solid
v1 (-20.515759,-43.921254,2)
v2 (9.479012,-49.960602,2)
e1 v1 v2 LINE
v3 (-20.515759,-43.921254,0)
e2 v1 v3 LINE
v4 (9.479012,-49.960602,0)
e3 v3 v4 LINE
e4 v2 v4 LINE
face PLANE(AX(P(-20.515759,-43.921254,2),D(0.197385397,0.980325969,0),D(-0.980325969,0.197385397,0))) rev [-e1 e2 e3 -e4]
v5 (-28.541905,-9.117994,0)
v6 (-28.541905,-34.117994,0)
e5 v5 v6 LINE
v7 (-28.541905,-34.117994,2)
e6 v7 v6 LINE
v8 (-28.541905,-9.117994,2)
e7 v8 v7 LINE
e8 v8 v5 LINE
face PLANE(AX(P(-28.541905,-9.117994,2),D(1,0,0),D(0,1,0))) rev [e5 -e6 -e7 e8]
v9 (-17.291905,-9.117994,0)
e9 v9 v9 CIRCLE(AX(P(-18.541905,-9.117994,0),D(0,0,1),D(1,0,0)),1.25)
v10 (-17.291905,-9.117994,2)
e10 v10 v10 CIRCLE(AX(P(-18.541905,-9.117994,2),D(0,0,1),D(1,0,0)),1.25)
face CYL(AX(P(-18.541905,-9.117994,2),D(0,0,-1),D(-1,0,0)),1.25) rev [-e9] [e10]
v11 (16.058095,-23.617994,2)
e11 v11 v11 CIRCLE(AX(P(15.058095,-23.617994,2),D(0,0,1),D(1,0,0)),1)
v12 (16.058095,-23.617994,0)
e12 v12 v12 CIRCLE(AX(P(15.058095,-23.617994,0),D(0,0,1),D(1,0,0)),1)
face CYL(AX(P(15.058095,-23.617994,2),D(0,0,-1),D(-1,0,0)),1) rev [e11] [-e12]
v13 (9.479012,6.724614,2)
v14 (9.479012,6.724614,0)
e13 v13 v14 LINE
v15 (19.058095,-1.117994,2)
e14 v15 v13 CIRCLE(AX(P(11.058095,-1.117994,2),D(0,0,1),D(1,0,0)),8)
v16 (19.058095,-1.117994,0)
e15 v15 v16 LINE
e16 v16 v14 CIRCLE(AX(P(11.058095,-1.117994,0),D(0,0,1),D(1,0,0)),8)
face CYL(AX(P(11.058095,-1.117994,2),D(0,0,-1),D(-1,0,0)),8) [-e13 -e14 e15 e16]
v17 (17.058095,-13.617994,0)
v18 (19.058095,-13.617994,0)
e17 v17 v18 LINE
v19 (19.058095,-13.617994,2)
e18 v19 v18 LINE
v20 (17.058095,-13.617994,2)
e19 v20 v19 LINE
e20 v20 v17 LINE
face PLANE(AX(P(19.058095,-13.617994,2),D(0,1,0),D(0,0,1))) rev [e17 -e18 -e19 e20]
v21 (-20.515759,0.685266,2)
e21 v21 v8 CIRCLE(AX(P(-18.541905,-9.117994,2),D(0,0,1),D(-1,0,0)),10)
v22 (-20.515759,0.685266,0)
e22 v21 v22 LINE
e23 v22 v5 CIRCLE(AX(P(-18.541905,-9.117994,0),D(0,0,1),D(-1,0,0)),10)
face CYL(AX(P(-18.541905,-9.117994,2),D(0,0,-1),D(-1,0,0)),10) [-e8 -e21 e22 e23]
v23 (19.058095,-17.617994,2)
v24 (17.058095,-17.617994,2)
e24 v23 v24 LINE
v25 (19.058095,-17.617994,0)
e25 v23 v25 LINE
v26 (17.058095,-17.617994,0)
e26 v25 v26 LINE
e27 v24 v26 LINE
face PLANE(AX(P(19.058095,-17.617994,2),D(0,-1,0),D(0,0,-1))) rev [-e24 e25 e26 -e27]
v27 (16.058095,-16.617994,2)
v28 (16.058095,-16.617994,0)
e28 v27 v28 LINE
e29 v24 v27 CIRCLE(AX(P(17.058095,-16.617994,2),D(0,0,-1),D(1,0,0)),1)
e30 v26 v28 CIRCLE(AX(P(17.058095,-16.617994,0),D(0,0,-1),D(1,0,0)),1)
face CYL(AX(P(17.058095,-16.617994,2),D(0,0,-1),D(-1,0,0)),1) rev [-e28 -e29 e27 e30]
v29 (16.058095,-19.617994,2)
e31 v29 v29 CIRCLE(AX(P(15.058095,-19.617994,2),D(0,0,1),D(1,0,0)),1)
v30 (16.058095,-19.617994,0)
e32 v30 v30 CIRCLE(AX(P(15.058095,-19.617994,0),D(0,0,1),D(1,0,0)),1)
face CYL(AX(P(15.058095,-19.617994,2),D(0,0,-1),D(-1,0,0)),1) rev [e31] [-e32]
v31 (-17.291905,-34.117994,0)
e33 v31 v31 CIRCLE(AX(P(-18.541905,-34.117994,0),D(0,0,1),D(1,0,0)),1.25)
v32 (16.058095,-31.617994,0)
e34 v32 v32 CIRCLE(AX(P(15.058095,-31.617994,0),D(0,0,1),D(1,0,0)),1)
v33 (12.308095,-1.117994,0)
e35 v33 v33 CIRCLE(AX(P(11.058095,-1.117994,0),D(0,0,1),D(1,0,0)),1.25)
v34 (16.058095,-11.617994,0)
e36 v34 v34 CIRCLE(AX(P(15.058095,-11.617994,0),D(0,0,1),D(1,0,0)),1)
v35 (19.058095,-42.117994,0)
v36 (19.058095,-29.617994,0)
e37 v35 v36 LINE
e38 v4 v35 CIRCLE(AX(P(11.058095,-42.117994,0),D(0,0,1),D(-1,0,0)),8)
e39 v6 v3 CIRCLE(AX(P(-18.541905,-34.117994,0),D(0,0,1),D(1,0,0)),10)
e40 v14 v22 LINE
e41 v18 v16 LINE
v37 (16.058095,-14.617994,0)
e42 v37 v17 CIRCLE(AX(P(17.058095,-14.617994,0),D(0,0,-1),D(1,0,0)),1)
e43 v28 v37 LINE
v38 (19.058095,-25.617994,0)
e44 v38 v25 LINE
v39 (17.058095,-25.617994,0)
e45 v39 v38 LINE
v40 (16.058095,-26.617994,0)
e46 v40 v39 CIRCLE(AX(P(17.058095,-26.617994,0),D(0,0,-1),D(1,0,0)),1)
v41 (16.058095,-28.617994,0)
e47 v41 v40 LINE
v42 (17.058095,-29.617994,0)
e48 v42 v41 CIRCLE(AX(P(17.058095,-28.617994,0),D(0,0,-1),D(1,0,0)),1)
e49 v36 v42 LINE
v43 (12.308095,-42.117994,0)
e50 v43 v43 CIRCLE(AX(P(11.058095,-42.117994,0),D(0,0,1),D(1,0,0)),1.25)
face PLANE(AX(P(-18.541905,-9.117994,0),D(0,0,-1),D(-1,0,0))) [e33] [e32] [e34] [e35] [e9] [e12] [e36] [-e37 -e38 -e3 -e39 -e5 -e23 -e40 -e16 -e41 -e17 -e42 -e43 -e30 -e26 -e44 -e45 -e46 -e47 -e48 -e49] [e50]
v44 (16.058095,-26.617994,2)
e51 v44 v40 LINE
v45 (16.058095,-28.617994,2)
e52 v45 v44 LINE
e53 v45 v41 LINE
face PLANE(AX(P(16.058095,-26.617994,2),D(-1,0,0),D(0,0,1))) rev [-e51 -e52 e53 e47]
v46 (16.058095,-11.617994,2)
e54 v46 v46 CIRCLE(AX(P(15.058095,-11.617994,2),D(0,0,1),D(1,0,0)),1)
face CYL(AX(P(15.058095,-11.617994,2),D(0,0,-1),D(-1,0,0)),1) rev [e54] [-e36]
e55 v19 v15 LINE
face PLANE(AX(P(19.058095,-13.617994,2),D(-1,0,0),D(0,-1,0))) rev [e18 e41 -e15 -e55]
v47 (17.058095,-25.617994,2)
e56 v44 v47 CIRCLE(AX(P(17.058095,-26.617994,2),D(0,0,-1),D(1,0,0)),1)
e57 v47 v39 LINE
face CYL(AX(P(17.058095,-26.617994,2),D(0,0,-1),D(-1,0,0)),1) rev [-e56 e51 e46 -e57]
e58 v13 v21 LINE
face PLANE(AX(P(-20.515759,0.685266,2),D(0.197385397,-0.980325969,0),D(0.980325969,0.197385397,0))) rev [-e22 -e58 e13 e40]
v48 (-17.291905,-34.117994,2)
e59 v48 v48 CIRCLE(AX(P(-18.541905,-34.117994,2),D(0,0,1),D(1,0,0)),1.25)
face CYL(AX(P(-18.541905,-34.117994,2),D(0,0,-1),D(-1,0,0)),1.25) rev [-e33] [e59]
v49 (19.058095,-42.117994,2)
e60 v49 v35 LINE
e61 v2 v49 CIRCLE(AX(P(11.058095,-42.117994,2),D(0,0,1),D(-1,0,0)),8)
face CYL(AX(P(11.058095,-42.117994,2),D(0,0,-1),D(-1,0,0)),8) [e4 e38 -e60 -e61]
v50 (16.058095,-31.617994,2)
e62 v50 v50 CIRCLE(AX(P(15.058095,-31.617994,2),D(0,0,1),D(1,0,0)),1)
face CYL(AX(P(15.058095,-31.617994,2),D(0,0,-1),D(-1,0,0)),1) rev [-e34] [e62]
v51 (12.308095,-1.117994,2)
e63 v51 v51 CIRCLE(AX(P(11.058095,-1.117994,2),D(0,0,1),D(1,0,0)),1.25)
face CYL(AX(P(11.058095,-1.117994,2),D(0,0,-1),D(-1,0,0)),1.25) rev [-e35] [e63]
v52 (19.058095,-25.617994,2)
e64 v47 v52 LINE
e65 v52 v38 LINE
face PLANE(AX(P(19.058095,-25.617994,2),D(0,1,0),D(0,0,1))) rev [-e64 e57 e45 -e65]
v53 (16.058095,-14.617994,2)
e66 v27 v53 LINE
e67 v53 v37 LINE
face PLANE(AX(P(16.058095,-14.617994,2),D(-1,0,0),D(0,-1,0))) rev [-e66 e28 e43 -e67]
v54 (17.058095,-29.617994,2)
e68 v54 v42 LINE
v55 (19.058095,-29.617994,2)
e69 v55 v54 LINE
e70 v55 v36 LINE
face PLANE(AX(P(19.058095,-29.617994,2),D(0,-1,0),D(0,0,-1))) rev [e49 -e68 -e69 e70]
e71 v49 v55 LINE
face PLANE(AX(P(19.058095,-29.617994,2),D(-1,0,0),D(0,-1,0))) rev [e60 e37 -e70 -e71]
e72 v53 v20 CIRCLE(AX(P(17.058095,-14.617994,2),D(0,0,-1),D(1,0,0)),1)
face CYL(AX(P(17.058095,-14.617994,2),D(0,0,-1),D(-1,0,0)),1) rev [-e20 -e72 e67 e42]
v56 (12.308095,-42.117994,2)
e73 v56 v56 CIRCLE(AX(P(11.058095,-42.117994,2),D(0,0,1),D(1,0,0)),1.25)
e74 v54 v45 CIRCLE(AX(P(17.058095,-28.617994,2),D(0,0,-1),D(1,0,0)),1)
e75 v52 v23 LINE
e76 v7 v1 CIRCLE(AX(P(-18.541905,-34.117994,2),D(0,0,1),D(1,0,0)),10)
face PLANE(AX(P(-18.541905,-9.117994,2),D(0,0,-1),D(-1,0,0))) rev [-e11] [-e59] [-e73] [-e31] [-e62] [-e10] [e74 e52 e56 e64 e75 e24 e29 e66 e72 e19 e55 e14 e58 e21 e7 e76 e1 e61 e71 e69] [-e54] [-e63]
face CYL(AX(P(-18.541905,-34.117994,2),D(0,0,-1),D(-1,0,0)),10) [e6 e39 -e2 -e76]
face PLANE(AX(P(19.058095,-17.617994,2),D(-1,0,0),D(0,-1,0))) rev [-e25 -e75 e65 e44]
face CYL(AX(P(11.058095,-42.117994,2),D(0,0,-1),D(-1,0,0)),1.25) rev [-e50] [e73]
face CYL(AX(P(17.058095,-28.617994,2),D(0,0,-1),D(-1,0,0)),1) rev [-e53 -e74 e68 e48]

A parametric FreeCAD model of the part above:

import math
import FreeCAD as App
import Part
import Sketcher

V = App.Vector
Q = App.Units.Quantity

doc = App.newDocument("Part")
body = doc.addObject("PartDesign::Body", "Body")

# Sketch on XY plane
sketch1 = body.newObject("Sketcher::SketchObject", "Sketch")
sketch1.AttachmentSupport = (doc.getObject("XY_Plane"), [""])
sketch1.MapMode = "FlatFace"
sketch1.addGeometry([
    Part.LineSegment(V(-28.5, -9.1, 0), V(-28.5, -34.1, 0)),  # 0
    Part.ArcOfCircle(Part.Circle(V(-18.5, -34.1, 0), V(0, 0, 1), 10), math.radians(180), math.radians(259)),  # 1
    Part.LineSegment(V(-20.5, -43.9, 0), V(9.5, -50, 0)),  # 2
    Part.ArcOfCircle(Part.Circle(V(11.1, -42.1, 0), V(0, 0, 1), 8), math.radians(-101), math.radians(0)),  # 3
    Part.LineSegment(V(19.1, -42.1, 0), V(19.1, -29.6, 0)),  # 4
    Part.LineSegment(V(19.1, -29.6, 0), V(17.1, -29.6, 0)),  # 5
    Part.ArcOfCircle(Part.Circle(V(17.1, -28.6, 0), V(0, 0, 1), 1), math.radians(-180), math.radians(-90)),  # 6
    Part.LineSegment(V(16.1, -28.6, 0), V(16.1, -26.6, 0)),  # 7
    Part.ArcOfCircle(Part.Circle(V(17.1, -26.6, 0), V(0, 0, 1), 1), math.radians(90), math.radians(180)),  # 8
    Part.LineSegment(V(17.1, -25.6, 0), V(19.1, -25.6, 0)),  # 9
    Part.LineSegment(V(19.1, -25.6, 0), V(19.1, -17.6, 0)),  # 10
    Part.LineSegment(V(19.1, -17.6, 0), V(17.1, -17.6, 0)),  # 11
    Part.ArcOfCircle(Part.Circle(V(17.1, -16.6, 0), V(0, 0, 1), 1), math.radians(-180), math.radians(-90)),  # 12
    Part.LineSegment(V(16.1, -16.6, 0), V(16.1, -14.6, 0)),  # 13
    Part.ArcOfCircle(Part.Circle(V(17.1, -14.6, 0), V(0, 0, 1), 1), math.radians(90), math.radians(180)),  # 14
    Part.LineSegment(V(17.1, -13.6, 0), V(19.1, -13.6, 0)),  # 15
    Part.LineSegment(V(19.1, -13.6, 0), V(19.1, -1.1, 0)),  # 16
    Part.ArcOfCircle(Part.Circle(V(11.1, -1.1, 0), V(0, 0, 1), 8), math.radians(0), math.radians(101)),  # 17
    Part.LineSegment(V(9.5, 6.7, 0), V(-20.5, 0.7, 0)),  # 18
    Part.ArcOfCircle(Part.Circle(V(-18.5, -9.1, 0), V(0, 0, 1), 10), math.radians(101), math.radians(180)),  # 19
    Part.Circle(V(-18.5, -34.1, 0), V(0, 0, 1), 1.2),  # 20
    Part.Circle(V(11.1, -42.1, 0), V(0, 0, 1), 1.2),  # 21
    Part.Circle(V(15.1, -31.6, 0), V(0, 0, 1), 1),  # 22
    Part.Circle(V(15.1, -23.6, 0), V(0, 0, 1), 1),  # 23
    Part.Circle(V(-18.5, -9.1, 0), V(0, 0, 1), 1.2),  # 24
    Part.Circle(V(15.1, -19.6, 0), V(0, 0, 1), 1),  # 25
    Part.Circle(V(15.1, -11.6, 0), V(0, 0, 1), 1),  # 26
    Part.Circle(V(11.1, -1.1, 0), V(0, 0, 1), 1.2),  # 27
], False)
sketch1.addConstraint([
    Sketcher.Constraint("Tangent", 0, 2, 1, 1),
    Sketcher.Constraint("Tangent", 1, 2, 2, 1),
    Sketcher.Constraint("Tangent", 2, 2, 3, 1),
    Sketcher.Constraint("Tangent", 3, 2, 4, 1),
    Sketcher.Constraint("Coincident", 4, 2, 5, 1),
    Sketcher.Constraint("Tangent", 5, 2, 6, 2),
    Sketcher.Constraint("Tangent", 6, 1, 7, 1),
    Sketcher.Constraint("Tangent", 7, 2, 8, 2),
    Sketcher.Constraint("Tangent", 8, 1, 9, 1),
    Sketcher.Constraint("Coincident", 9, 2, 10, 1),
    Sketcher.Constraint("Coincident", 10, 2, 11, 1),
    Sketcher.Constraint("Tangent", 11, 2, 12, 2),
    Sketcher.Constraint("Tangent", 12, 1, 13, 1),
    Sketcher.Constraint("Tangent", 13, 2, 14, 2),
    Sketcher.Constraint("Tangent", 14, 1, 15, 1),
    Sketcher.Constraint("Coincident", 15, 2, 16, 1),
    Sketcher.Constraint("Tangent", 16, 2, 17, 1),
    Sketcher.Constraint("Tangent", 17, 2, 18, 1),
    Sketcher.Constraint("Tangent", 18, 2, 19, 1),
    Sketcher.Constraint("Tangent", 19, 2, 0, 1),
    Sketcher.Constraint("Vertical", 0),
    Sketcher.Constraint("Vertical", 4),
    Sketcher.Constraint("Horizontal", 5),
    Sketcher.Constraint("Vertical", 7),
    Sketcher.Constraint("Horizontal", 9),
    Sketcher.Constraint("Vertical", 10),
    Sketcher.Constraint("Horizontal", 11),
    Sketcher.Constraint("Vertical", 13),
    Sketcher.Constraint("Horizontal", 15),
    Sketcher.Constraint("Vertical", 16),
    Sketcher.Constraint("Coincident", 20, 3, 1, 3),
    Sketcher.Constraint("Coincident", 21, 3, 3, 3),
    Sketcher.Constraint("Coincident", 24, 3, 19, 3),
    Sketcher.Constraint("Coincident", 27, 3, 17, 3),
    Sketcher.Constraint("Equal", 6, 8),
    Sketcher.Constraint("Equal", 8, 12),
    Sketcher.Constraint("Equal", 12, 14),
    Sketcher.Constraint("Equal", 3, 17),
    Sketcher.Constraint("Equal", 1, 19),
    Sketcher.Constraint("Equal", 20, 21),
    Sketcher.Constraint("Equal", 14, 22),
    Sketcher.Constraint("Equal", 22, 23),
    Sketcher.Constraint("Equal", 21, 24),
    Sketcher.Constraint("Equal", 23, 25),
    Sketcher.Constraint("Equal", 25, 26),
    Sketcher.Constraint("Equal", 24, 27),
    Sketcher.Constraint("Vertical", 8, 3, 12, 3),
    Sketcher.Constraint("Vertical", 3, 3, 17, 3),
    Sketcher.Constraint("Vertical", 22, 3, 23, 3),
    Sketcher.Constraint("Vertical", 23, 3, 25, 3),
    Sketcher.Constraint("Vertical", 25, 3, 26, 3),
    Sketcher.Constraint("Vertical", 4, 2, 9, 2),
    Sketcher.Constraint("Vertical", 2, 2, 17, 2),
    Sketcher.Constraint("Equal", 15, 7),
    Sketcher.Constraint("Equal", 7, 13),
    Sketcher.Constraint("Equal", 4, 16),
    Sketcher.Constraint("Diameter", 22, Q("2 mm")),
    Sketcher.Constraint("Radius", 1, Q("10 mm")),
    Sketcher.Constraint("Radius", 3, Q("8 mm")),
    Sketcher.Constraint("Diameter", 20, Q("2.5 mm")),
    Sketcher.Constraint("DistanceX", 5, 2, 5, 1, Q("2 mm")),
    Sketcher.Constraint("DistanceY", 0, 2, 0, 1, Q("25 mm")),
    Sketcher.Constraint("DistanceY", 10, 1, 10, 2, Q("8 mm")),
    Sketcher.Constraint("DistanceY", 4, 1, 4, 2, Q("12.5 mm")),
    Sketcher.Constraint("DistanceX", 22, 3, 6, 3, Q("2 mm")),
    Sketcher.Constraint("DistanceY", 22, 3, 6, 3, Q("3 mm")),
    Sketcher.Constraint("DistanceY", 8, 3, 23, 3, Q("3 mm")),
    Sketcher.Constraint("DistanceY", 25, 3, 12, 3, Q("3 mm")),
    Sketcher.Constraint("DistanceY", 14, 3, 26, 3, Q("3 mm")),
    Sketcher.Constraint("DistanceX", 1, 3, 3, 3, Q("29.6 mm")),
    Sketcher.Constraint("DistanceY", 2, 2, -1, 1, Q("49.960602 mm")),
    Sketcher.Constraint("DistanceX", 1, 2, -1, 1, Q("20.515759 mm")),
])
pad1 = body.newObject("PartDesign::Pad", "Pad")
pad1.Profile = sketch1
pad1.Length = 2

doc.recompute()
